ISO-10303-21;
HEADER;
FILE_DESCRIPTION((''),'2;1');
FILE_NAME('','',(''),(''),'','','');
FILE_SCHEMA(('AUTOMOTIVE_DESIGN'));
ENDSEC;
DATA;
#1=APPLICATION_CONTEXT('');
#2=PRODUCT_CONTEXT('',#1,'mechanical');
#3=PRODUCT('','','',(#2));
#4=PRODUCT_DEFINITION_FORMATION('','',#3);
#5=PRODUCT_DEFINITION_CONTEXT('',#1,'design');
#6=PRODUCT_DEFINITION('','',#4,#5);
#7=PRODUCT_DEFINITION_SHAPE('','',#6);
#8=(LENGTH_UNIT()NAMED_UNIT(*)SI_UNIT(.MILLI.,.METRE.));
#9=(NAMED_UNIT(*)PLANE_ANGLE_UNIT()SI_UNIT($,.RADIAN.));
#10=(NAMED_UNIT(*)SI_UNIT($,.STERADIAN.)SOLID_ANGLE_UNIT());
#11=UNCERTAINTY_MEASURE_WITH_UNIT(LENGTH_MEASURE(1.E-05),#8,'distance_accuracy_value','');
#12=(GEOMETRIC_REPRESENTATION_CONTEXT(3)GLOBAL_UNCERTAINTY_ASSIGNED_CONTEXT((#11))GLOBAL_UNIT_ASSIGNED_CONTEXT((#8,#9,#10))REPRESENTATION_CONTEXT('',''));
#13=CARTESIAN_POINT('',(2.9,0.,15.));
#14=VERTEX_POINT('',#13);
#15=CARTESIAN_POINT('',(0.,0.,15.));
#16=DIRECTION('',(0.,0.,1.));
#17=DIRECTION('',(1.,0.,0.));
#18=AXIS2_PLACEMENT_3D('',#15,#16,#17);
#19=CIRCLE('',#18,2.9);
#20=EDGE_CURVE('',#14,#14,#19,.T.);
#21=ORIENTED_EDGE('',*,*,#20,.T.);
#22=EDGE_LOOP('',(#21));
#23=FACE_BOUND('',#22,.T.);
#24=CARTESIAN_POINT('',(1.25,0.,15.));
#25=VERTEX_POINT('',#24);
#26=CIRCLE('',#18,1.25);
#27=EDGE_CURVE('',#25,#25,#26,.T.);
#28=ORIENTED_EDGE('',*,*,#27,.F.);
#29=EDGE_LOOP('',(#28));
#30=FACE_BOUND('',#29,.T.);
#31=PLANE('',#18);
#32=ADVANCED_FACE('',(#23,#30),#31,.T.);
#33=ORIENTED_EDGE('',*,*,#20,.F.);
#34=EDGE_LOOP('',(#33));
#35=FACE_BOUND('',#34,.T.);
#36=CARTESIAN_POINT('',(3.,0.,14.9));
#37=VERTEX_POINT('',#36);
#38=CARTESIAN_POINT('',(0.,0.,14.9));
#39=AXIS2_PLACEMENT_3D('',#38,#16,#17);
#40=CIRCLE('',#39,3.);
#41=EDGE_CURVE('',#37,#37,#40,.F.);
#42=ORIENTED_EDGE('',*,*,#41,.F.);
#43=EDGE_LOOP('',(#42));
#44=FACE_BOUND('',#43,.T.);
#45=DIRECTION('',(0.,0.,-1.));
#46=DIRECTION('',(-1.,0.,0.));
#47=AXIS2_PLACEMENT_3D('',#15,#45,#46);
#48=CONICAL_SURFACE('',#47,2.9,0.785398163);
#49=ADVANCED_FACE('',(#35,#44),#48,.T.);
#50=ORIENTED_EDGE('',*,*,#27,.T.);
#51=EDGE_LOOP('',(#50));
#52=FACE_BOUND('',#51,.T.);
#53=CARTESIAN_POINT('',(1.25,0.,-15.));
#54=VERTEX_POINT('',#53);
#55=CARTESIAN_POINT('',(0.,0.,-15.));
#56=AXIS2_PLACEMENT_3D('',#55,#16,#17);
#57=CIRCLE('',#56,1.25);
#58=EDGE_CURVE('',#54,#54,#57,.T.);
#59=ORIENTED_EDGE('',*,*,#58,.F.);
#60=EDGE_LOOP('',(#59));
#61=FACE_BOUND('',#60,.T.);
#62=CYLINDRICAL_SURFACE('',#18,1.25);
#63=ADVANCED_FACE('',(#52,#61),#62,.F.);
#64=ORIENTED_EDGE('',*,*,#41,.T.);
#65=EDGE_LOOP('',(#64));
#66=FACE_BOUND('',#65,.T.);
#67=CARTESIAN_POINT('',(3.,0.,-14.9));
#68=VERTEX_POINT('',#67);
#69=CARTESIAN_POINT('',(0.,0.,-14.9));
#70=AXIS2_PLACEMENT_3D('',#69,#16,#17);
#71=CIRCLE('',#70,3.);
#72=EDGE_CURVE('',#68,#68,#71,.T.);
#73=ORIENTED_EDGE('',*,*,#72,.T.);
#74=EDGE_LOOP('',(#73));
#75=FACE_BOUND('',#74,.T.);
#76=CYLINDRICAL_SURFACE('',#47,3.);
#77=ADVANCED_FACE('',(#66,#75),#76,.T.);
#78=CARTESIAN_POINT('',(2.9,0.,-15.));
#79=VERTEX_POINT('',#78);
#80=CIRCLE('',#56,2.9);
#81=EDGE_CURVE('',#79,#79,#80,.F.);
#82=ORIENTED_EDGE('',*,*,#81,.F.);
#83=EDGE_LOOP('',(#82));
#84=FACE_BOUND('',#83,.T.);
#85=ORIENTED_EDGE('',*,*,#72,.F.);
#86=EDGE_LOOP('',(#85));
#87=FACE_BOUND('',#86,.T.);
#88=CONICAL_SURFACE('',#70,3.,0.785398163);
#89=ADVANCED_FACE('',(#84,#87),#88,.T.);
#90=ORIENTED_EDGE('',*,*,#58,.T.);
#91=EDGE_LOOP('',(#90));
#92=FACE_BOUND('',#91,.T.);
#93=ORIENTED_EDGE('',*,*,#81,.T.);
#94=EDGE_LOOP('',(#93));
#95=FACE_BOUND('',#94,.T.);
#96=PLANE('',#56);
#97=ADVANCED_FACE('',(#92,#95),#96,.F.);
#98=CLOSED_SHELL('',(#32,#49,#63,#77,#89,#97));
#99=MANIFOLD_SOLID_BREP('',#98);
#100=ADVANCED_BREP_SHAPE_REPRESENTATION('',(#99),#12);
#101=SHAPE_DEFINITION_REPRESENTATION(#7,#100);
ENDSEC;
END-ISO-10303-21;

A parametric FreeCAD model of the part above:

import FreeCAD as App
import Part
import Sketcher
Q = App.Units.Quantity


def edges_at(feature, points):
    """Names of the edges that pass closest to the given points."""
    edges = feature.Shape.Edges
    near = lambda p: min(range(len(edges)), key=lambda i: edges[i].distToShape(Part.Vertex(*p))[0])
    return sorted({f"Edge{near(p) + 1}" for p in points})

doc = App.newDocument("Part")
body = doc.addObject("PartDesign::Body", "Body")

# Sketch on XY plane
sketch1 = doc.addObject("Sketcher::SketchObject", "Sketch")
body.addObject(sketch1)
sketch1.AttachmentSupport = (doc.XY_Plane, [""])
sketch1.MapMode = "FlatFace"
sketch1.addGeometry(Part.Circle(App.Vector(0, 0, 0), App.Vector(0, 0, 1), 3), False)
sketch1.addConstraint(Sketcher.Constraint("Coincident", 0, 3, -1, 1))
sketch1.addConstraint(Sketcher.Constraint("Diameter", 0, Q("6 mm")))
pad1 = doc.addObject("PartDesign::Pad", "Pad")
body.addObject(pad1)
pad1.Profile = sketch1
pad1.Length = 30
pad1.Midplane = True
doc.recompute()

chamfer = doc.addObject("PartDesign::Chamfer", "Chamfer")
body.addObject(chamfer)
chamfer.Base = (pad1, edges_at(pad1, [(-3, 0, -15), (-3, 0, 15)]))
chamfer.Size = 0.1

# Sketch on XY plane
sketch2 = doc.addObject("Sketcher::SketchObject", "Sketch001")
body.addObject(sketch2)
sketch2.AttachmentSupport = (doc.XY_Plane, [""])
sketch2.MapMode = "FlatFace"
sketch2.AttachmentOffset = App.Placement(App.Vector(0, 0, 15), App.Rotation())
sketch2.addGeometry(Part.Circle(App.Vector(0, 0, 0), App.Vector(0, 0, 1), 1.2), False)
sketch2.addConstraint(Sketcher.Constraint("Coincident", 0, 3, -1, 1))
sketch2.addConstraint(Sketcher.Constraint("Diameter", 0, Q("2.5 mm")))
doc.recompute()
hole = doc.addObject("PartDesign::Hole", "Hole")
body.addObject(hole)
hole.Profile = sketch2
hole.ThreadType = "None"
hole.Diameter = 2.5
hole.DepthType = "ThroughAll"

doc.recompute()
